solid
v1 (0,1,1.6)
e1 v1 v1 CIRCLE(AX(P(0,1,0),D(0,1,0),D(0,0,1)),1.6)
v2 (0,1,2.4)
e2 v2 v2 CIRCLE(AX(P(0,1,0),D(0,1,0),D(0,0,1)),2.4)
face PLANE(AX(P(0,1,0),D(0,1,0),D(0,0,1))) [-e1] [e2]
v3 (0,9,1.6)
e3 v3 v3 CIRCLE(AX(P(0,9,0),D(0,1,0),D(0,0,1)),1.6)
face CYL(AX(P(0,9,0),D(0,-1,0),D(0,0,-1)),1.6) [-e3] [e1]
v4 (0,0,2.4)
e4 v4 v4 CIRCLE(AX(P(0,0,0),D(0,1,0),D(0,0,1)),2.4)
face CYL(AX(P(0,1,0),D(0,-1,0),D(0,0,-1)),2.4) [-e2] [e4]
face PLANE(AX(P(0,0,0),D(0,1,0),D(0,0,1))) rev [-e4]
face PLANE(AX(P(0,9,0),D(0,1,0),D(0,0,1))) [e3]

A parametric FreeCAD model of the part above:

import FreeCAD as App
import Part
import Sketcher

doc = App.newDocument("Part")
body = doc.addObject("PartDesign::Body", "Body")

# Sketch on XZ plane
sketch1 = body.newObject("Sketcher::SketchObject", "Sketch")
sketch1.AttachmentSupport = (doc.getObject("XZ_Plane"), [""])
sketch1.MapMode = "FlatFace"
sketch1.addGeometry(Part.Circle(App.Vector(0, 0, 0), App.Vector(0, 0, 1), 2.4), False)
sketch1.addConstraint([
    Sketcher.Constraint("Coincident", 0, 3, -1, 1),
    Sketcher.Constraint("Diameter", 0, 4.8),
])
pad1 = body.newObject("PartDesign::Pad", "Pad")
pad1.Profile = sketch1
pad1.Length = 1
pad1.Reversed = True

# Sketch on XZ plane
sketch2 = body.newObject("Sketcher::SketchObject", "Sketch001")
sketch2.AttachmentSupport = (doc.getObject("XZ_Plane"), [""])
sketch2.MapMode = "FlatFace"
sketch2.AttachmentOffset = App.Placement(App.Vector(0, 0, -1), App.Rotation())
sketch2.addGeometry(Part.Circle(App.Vector(0, 0, 0), App.Vector(0, 0, 1), 1.6), False)
sketch2.addConstraint([
    Sketcher.Constraint("Coincident", 0, 3, -1, 1),
    Sketcher.Constraint("Diameter", 0, 3.2),
])
pad2 = body.newObject("PartDesign::Pad", "Pad001")
pad2.Profile = sketch2
pad2.Length = 8
pad2.Reversed = True

doc.recompute()
